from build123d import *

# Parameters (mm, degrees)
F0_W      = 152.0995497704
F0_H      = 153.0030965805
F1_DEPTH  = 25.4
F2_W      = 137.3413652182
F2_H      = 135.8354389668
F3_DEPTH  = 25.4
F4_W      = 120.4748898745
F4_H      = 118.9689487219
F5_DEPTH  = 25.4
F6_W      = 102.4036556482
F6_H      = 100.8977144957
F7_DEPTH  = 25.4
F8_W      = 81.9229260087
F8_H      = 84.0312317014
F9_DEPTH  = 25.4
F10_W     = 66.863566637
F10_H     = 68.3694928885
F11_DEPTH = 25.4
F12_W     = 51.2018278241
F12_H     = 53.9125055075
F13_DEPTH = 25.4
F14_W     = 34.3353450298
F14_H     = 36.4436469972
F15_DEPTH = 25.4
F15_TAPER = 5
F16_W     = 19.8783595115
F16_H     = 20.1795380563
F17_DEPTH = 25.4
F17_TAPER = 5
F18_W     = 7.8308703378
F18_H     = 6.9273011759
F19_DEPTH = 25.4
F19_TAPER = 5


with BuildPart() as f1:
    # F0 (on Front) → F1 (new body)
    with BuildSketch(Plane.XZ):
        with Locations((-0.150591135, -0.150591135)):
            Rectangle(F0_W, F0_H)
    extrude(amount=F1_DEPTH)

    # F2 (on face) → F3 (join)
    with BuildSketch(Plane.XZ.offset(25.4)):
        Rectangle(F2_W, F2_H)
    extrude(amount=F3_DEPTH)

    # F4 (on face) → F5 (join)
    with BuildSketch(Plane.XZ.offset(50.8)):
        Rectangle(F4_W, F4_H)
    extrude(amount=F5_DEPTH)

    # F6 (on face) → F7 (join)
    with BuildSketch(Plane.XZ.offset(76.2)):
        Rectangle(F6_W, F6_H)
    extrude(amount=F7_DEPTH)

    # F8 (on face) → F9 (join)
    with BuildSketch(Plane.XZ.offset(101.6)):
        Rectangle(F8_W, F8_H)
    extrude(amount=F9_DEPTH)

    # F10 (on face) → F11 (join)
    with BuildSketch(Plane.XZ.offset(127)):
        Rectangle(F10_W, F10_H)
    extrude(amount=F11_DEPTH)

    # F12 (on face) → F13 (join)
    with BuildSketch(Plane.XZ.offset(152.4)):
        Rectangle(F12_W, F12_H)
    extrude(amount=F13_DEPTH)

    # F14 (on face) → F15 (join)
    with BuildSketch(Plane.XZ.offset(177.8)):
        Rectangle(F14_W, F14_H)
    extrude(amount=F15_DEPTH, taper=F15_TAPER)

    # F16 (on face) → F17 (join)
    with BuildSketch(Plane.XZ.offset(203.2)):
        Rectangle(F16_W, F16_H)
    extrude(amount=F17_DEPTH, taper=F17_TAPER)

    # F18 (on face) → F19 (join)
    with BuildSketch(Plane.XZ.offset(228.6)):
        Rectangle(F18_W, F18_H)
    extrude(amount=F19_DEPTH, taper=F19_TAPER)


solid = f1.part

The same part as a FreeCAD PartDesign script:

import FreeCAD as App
import Part
import Sketcher

V = App.Vector
Q = App.Units.Quantity


def add_polygon(sketch, points):
    """Adds a closed chain of lines whose ends are joined by coincident constraints."""
    first, n = sketch.GeometryCount, len(points)
    for a, b in zip(points, points[1:] + points[:1]):
        sketch.addGeometry(Part.LineSegment(App.Vector(*a, 0), App.Vector(*b, 0)), False)
    for i in range(n):
        sketch.addConstraint(Sketcher.Constraint("Coincident", first + i, 2, first + (i + 1) % n, 1))

doc = App.newDocument("Part")
body = doc.addObject("PartDesign::Body", "Body")

# Sketch on XZ plane
sketch1 = body.newObject("Sketcher::SketchObject", "Sketch")
sketch1.AttachmentSupport = (doc.getObject("XZ_Plane"), [""])
sketch1.MapMode = "FlatFace"
add_polygon(sketch1, [(-76.200366, 76.350957), (-76.200366, -76.652139), (75.899184, -76.652139), (75.899184, 76.350957)])  # lines 0-3
sketch1.addConstraint([
    Sketcher.Constraint("Vertical", 0),
    Sketcher.Constraint("Horizontal", 1),
    Sketcher.Constraint("Vertical", 2),
    Sketcher.Constraint("Horizontal", 3),
    Sketcher.Constraint("DistanceX", 1, 1, 1, 2, 152.09955),
    Sketcher.Constraint("DistanceY", 0, 2, 0, 1, 153.003097),
    Sketcher.Constraint("DistanceY", 0, 2, -1, 1, 76.652139),
    Sketcher.Constraint("DistanceX", 0, 2, -1, 1, 76.200366),
])
pad1 = body.newObject("PartDesign::Pad", "Pad")
pad1.Profile = sketch1
pad1.Length = Q("1 in")

# Sketch on XZ plane
sketch2 = body.newObject("Sketcher::SketchObject", "Sketch001")
sketch2.AttachmentSupport = (doc.getObject("XZ_Plane"), [""])
sketch2.MapMode = "FlatFace"
sketch2.AttachmentOffset = App.Placement(V(0, 0, 1 * 25.4), App.Rotation())
add_polygon(sketch2, [(-68.670683, 67.917719), (-68.670683, -67.917719), (68.670683, -67.917719), (68.670683, 67.917719)])  # lines 0-3
sketch2.addConstraint([
    Sketcher.Constraint("Vertical", 0),
    Sketcher.Constraint("Horizontal", 1),
    Sketcher.Constraint("Vertical", 2),
    Sketcher.Constraint("Horizontal", 3),
    Sketcher.Constraint("Symmetric", 0, 2, 2, 2, -1, 1),
    Sketcher.Constraint("DistanceY", 0, 2, 0, 1, 135.835439),
    Sketcher.Constraint("DistanceX", 1, 1, 1, 2, 137.341365),
])
pad2 = body.newObject("PartDesign::Pad", "Pad001")
pad2.Profile = sketch2
pad2.Length = Q("1 in")

# Sketch on XZ plane
sketch3 = body.newObject("Sketcher::SketchObject", "Sketch002")
sketch3.AttachmentSupport = (doc.getObject("XZ_Plane"), [""])
sketch3.MapMode = "FlatFace"
sketch3.AttachmentOffset = App.Placement(V(0, 0, 2 * 25.4), App.Rotation())
add_polygon(sketch3, [(-60.237445, 59.484474), (-60.237445, -59.484474), (60.237445, -59.484474), (60.237445, 59.484474)])  # lines 0-3
sketch3.addConstraint([
    Sketcher.Constraint("Vertical", 0),
    Sketcher.Constraint("Horizontal", 1),
    Sketcher.Constraint("Vertical", 2),
    Sketcher.Constraint("Horizontal", 3),
    Sketcher.Constraint("Symmetric", 0, 2, 2, 2, -1, 1),
    Sketcher.Constraint("DistanceX", 1, 1, 1, 2, 120.47489),
    Sketcher.Constraint("DistanceY", 0, 2, 0, 1, 118.968949),
])
pad3 = body.newObject("PartDesign::Pad", "Pad002")
pad3.Profile = sketch3
pad3.Length = Q("1 in")

# Sketch on XZ plane
sketch4 = body.newObject("Sketcher::SketchObject", "Sketch003")
sketch4.AttachmentSupport = (doc.getObject("XZ_Plane"), [""])
sketch4.MapMode = "FlatFace"
sketch4.AttachmentOffset = App.Placement(V(0, 0, 3 * 25.4), App.Rotation())
add_polygon(sketch4, [(-51.201828, 50.448857), (-51.201828, -50.448857), (51.201828, -50.448857), (51.201828, 50.448857)])  # lines 0-3
sketch4.addConstraint([
    Sketcher.Constraint("Vertical", 0),
    Sketcher.Constraint("Horizontal", 1),
    Sketcher.Constraint("Vertical", 2),
    Sketcher.Constraint("Horizontal", 3),
    Sketcher.Constraint("Symmetric", 0, 2, 2, 2, -1, 1),
    Sketcher.Constraint("DistanceX", 1, 1, 1, 2, 102.403656),
    Sketcher.Constraint("DistanceY", 0, 2, 0, 1, 100.897714),
])
pad4 = body.newObject("PartDesign::Pad", "Pad003")
pad4.Profile = sketch4
pad4.Length = Q("1 in")

# Sketch on XZ plane
sketch5 = body.newObject("Sketcher::SketchObject", "Sketch004")
sketch5.AttachmentSupport = (doc.getObject("XZ_Plane"), [""])
sketch5.MapMode = "FlatFace"
sketch5.AttachmentOffset = App.Placement(V(0, 0, 4 * 25.4), App.Rotation())
add_polygon(sketch5, [(-40.961463, 42.015616), (-40.961463, -42.015616), (40.961463, -42.015616), (40.961463, 42.015616)])  # lines 0-3
sketch5.addConstraint([
    Sketcher.Constraint("Vertical", 0),
    Sketcher.Constraint("Horizontal", 1),
    Sketcher.Constraint("Vertical", 2),
    Sketcher.Constraint("Horizontal", 3),
    Sketcher.Constraint("Symmetric", 0, 2, 2, 2, -1, 1),
    Sketcher.Constraint("DistanceY", 0, 2, 0, 1, 84.031232),
    Sketcher.Constraint("DistanceX", 1, 1, 1, 2, 81.922926),
])
pad5 = body.newObject("PartDesign::Pad", "Pad004")
pad5.Profile = sketch5
pad5.Length = Q("1 in")

# Sketch on XZ plane
sketch6 = body.newObject("Sketcher::SketchObject", "Sketch005")
sketch6.AttachmentSupport = (doc.getObject("XZ_Plane"), [""])
sketch6.MapMode = "FlatFace"
sketch6.AttachmentOffset = App.Placement(V(0, 0, 5 * 25.4), App.Rotation())
add_polygon(sketch6, [(-33.431783, 34.184746), (-33.431783, -34.184746), (33.431783, -34.184746), (33.431783, 34.184746)])  # lines 0-3
sketch6.addConstraint([
    Sketcher.Constraint("Vertical", 0),
    Sketcher.Constraint("Horizontal", 1),
    Sketcher.Constraint("Vertical", 2),
    Sketcher.Constraint("Horizontal", 3),
    Sketcher.Constraint("Symmetric", 0, 2, 2, 2, -1, 1),
    Sketcher.Constraint("DistanceX", 1, 1, 1, 2, 66.863567),
    Sketcher.Constraint("DistanceY", 0, 2, 0, 1, 68.369493),
])
pad6 = body.newObject("PartDesign::Pad", "Pad005")
pad6.Profile = sketch6
pad6.Length = Q("1 in")

# Sketch on XZ plane
sketch7 = body.newObject("Sketcher::SketchObject", "Sketch006")
sketch7.AttachmentSupport = (doc.getObject("XZ_Plane"), [""])
sketch7.MapMode = "FlatFace"
sketch7.AttachmentOffset = App.Placement(V(0, 0, 6 * 25.4), App.Rotation())
add_polygon(sketch7, [(-25.600914, 26.956253), (-25.600914, -26.956253), (25.600914, -26.956253), (25.600914, 26.956253)])  # lines 0-3
sketch7.addConstraint([
    Sketcher.Constraint("Vertical", 0),
    Sketcher.Constraint("Horizontal", 1),
    Sketcher.Constraint("Vertical", 2),
    Sketcher.Constraint("Horizontal", 3),
    Sketcher.Constraint("Symmetric", 0, 2, 2, 2, -1, 1),
    Sketcher.Constraint("DistanceX", 1, 1, 1, 2, 51.201828),
    Sketcher.Constraint("DistanceY", 0, 2, 0, 1, 53.912506),
])
pad7 = body.newObject("PartDesign::Pad", "Pad006")
pad7.Profile = sketch7
pad7.Length = Q("1 in")

# Sketch on XZ plane
sketch8 = body.newObject("Sketcher::SketchObject", "Sketch007")
sketch8.AttachmentSupport = (doc.getObject("XZ_Plane"), [""])
sketch8.MapMode = "FlatFace"
sketch8.AttachmentOffset = App.Placement(V(0, 0, 7 * 25.4), App.Rotation())
add_polygon(sketch8, [(-17.167673, 18.221823), (-17.167673, -18.221823), (17.167673, -18.221823), (17.167673, 18.221823)])  # lines 0-3
sketch8.addConstraint([
    Sketcher.Constraint("Vertical", 0),
    Sketcher.Constraint("Horizontal", 1),
    Sketcher.Constraint("Vertical", 2),
    Sketcher.Constraint("Horizontal", 3),
    Sketcher.Constraint("Symmetric", 0, 2, 2, 2, -1, 1),
    Sketcher.Constraint("DistanceX", 1, 1, 1, 2, 34.335345),
    Sketcher.Constraint("DistanceY", 0, 2, 0, 1, 36.443647),
])
pad8 = body.newObject("PartDesign::Pad", "Pad007")
pad8.Profile = sketch8
pad8.Length = Q("1 in")
pad8.TaperAngle = -5

# Sketch on XZ plane
sketch9 = body.newObject("Sketcher::SketchObject", "Sketch008")
sketch9.AttachmentSupport = (doc.getObject("XZ_Plane"), [""])
sketch9.MapMode = "FlatFace"
sketch9.AttachmentOffset = App.Placement(V(0, 0, 8 * 25.4), App.Rotation())
add_polygon(sketch9, [(-9.93918, 10.089769), (-9.93918, -10.089769), (9.93918, -10.089769), (9.93918, 10.089769)])  # lines 0-3
sketch9.addConstraint([
    Sketcher.Constraint("Vertical", 0),
    Sketcher.Constraint("Horizontal", 1),
    Sketcher.Constraint("Vertical", 2),
    Sketcher.Constraint("Horizontal", 3),
    Sketcher.Constraint("Symmetric", 0, 2, 2, 2, -1, 1),
    Sketcher.Constraint("DistanceX", 1, 1, 1, 2, 19.87836),
    Sketcher.Constraint("DistanceY", 0, 2, 0, 1, 20.179538),
])
pad9 = body.newObject("PartDesign::Pad", "Pad008")
pad9.Profile = sketch9
pad9.Length = Q("1 in")
pad9.TaperAngle = -5

# Sketch on XZ plane
sketch10 = body.newObject("Sketcher::SketchObject", "Sketch009")
sketch10.AttachmentSupport = (doc.getObject("XZ_Plane"), [""])
sketch10.MapMode = "FlatFace"
sketch10.AttachmentOffset = App.Placement(V(0, 0, 9 * 25.4), App.Rotation())
add_polygon(sketch10, [(-3.915435, 3.463651), (-3.915435, -3.463651), (3.915435, -3.463651), (3.915435, 3.463651)])  # lines 0-3
sketch10.addConstraint([
    Sketcher.Constraint("Vertical", 0),
    Sketcher.Constraint("Horizontal", 1),
    Sketcher.Constraint("Vertical", 2),
    Sketcher.Constraint("Horizontal", 3),
    Sketcher.Constraint("Symmetric", 0, 2, 2, 2, -1, 1),
    Sketcher.Constraint("DistanceY", 0, 2, 0, 1, 6.927301),
    Sketcher.Constraint("DistanceX", 1, 1, 1, 2, 7.83087),
])
pad10 = body.newObject("PartDesign::Pad", "Pad009")
pad10.Profile = sketch10
pad10.Length = Q("1 in")
pad10.TaperAngle = -5

doc.recompute()
